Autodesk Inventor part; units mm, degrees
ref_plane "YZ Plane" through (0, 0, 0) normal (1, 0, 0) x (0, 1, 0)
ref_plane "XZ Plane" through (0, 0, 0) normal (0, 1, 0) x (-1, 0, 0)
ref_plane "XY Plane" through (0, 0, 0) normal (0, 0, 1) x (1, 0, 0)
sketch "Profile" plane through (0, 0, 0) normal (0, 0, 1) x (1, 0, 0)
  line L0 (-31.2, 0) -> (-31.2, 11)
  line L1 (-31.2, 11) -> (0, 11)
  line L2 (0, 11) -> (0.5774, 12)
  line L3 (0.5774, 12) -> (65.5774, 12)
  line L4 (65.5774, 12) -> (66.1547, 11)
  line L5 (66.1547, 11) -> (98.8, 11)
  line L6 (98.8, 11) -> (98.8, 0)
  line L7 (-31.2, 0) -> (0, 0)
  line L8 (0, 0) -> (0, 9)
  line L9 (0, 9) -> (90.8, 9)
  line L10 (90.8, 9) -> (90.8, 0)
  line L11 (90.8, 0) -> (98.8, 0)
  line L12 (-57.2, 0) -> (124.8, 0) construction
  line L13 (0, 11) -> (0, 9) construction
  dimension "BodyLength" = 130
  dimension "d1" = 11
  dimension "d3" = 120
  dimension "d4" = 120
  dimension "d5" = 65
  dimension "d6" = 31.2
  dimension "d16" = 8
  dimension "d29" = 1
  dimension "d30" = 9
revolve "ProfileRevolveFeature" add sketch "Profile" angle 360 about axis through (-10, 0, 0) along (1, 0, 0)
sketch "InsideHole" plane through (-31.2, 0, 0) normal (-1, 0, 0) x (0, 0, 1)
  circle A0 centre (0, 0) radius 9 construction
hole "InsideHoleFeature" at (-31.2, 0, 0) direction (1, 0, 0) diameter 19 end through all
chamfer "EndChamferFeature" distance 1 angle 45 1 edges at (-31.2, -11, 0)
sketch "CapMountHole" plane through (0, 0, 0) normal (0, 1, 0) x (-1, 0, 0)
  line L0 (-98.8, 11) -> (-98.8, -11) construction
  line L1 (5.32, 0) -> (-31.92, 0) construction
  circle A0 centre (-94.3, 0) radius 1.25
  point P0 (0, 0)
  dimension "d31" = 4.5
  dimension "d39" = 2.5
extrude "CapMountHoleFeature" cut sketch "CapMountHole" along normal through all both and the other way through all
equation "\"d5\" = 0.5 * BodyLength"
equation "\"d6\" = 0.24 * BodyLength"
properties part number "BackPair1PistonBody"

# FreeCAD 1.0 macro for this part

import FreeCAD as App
import Part
import Sketcher
Q = App.Units.Quantity


def edges_at(feature, points):
    """Names of the edges that pass closest to the given points."""
    edges = feature.Shape.Edges
    near = lambda p: min(range(len(edges)), key=lambda i: edges[i].distToShape(Part.Vertex(*p))[0])
    return sorted({f"Edge{near(p) + 1}" for p in points})


def add_polygon(sketch, points):
    """Adds a closed chain of lines whose ends are joined by coincident constraints."""
    first, n = sketch.GeometryCount, len(points)
    for a, b in zip(points, points[1:] + points[:1]):
        sketch.addGeometry(Part.LineSegment(App.Vector(*a, 0), App.Vector(*b, 0)), False)
    for i in range(n):
        sketch.addConstraint(Sketcher.Constraint("Coincident", first + i, 2, first + (i + 1) % n, 1))

doc = App.newDocument("Part")
body = doc.addObject("PartDesign::Body", "Body")

sketch1 = doc.addObject("Sketcher::SketchObject", "Sketch")
body.addObject(sketch1)
sketch1.AttachmentSupport = (doc.XY_Plane, [""])
sketch1.MapMode = "FlatFace"
add_polygon(sketch1, [(-31.2, 11), (-31.2, 0), (0, 0), (0, 9), (90.8, 9), (90.8, 0), (98.8, 0), (98.8, 11), (66.2, 11), (65.6, 12), (0.6, 12), (0, 11)])
sketch1.addConstraint([
    Sketcher.Constraint("Vertical", 0),
    Sketcher.Constraint("Horizontal", 1),
    Sketcher.Constraint("Vertical", 2),
    Sketcher.Constraint("Horizontal", 3),
    Sketcher.Constraint("Vertical", 4),
    Sketcher.Constraint("Horizontal", 5),
    Sketcher.Constraint("Vertical", 6),
    Sketcher.Constraint("Horizontal", 7),
    Sketcher.Constraint("Horizontal", 9),
    Sketcher.Constraint("Horizontal", 11),
    Sketcher.Constraint("Coincident", 1, 2, -1, 1),
    Sketcher.Constraint("PointOnObject", 4, 2, -1),
    Sketcher.Constraint("PointOnObject", 10, 2, -2),
    Sketcher.Constraint("Horizontal", 7, 2, 10, 2),
    Sketcher.Constraint("Equal", 8, 10),
    Sketcher.Constraint("DistanceX", 5, 1, 5, 2, Q("8 mm")),
    Sketcher.Constraint("DistanceX", 9, 2, 9, 1, Q("65 mm")),
    Sketcher.Constraint("DistanceY", 0, 2, 0, 1, Q("11 mm")),
    Sketcher.Constraint("DistanceY", 2, 1, 2, 2, Q("9 mm")),
    Sketcher.Constraint("DistanceX", 1, 1, 1, 2, Q("31.2 mm")),
    Sketcher.Constraint("DistanceX", 0, 2, 5, 2, Q("130 mm")),
    Sketcher.Constraint("DistanceY", 7, 2, 8, 2, Q("1 mm")),
    Sketcher.Constraint("DistanceX", 7, 2, 7, 1, Q("32.6453 mm")),
])
revolution = doc.addObject("PartDesign::Revolution", "Revolution")
body.addObject(revolution)
revolution.Profile = sketch1
revolution.ReferenceAxis = (sketch1, ["H_Axis"])
revolution.Angle = 360

sketch2 = doc.addObject("Sketcher::SketchObject", "Sketch001")
body.addObject(sketch2)
sketch2.AttachmentSupport = (doc.YZ_Plane, [""])
sketch2.MapMode = "FlatFace"
sketch2.AttachmentOffset = App.Placement(App.Vector(0, 0, -31.2), App.Rotation())
sketch2.addGeometry(Part.Circle(App.Vector(0, 0, 0), App.Vector(0, 0, 1), 10), False)
sketch2.addConstraint([
    Sketcher.Constraint("Coincident", 0, 3, -1, 1),
    Sketcher.Constraint("Diameter", 0, Q("19 mm")),
])
doc.recompute()
hole = doc.addObject("PartDesign::Hole", "Hole")
body.addObject(hole)
hole.Profile = sketch2
hole.ThreadType = "None"
hole.Diameter = 19
hole.DepthType = "ThroughAll"
hole.Reversed = True
doc.recompute()

chamfer = doc.addObject("PartDesign::Chamfer", "Chamfer")
body.addObject(chamfer)
chamfer.Base = (hole, edges_at(hole, [(-31.2, -11, 0)]))
chamfer.Size = 1

sketch3 = doc.addObject("Sketcher::SketchObject", "Sketch002")
body.addObject(sketch3)
sketch3.AttachmentSupport = (doc.XZ_Plane, [""])
sketch3.MapMode = "FlatFace"
sketch3.addGeometry(Part.Circle(App.Vector(94.3, 0, 0), App.Vector(0, 0, 1), 1.2), False)
sketch3.addConstraint([
    Sketcher.Constraint("PointOnObject", 0, 3, -1),
    Sketcher.Constraint("Diameter", 0, Q("2.5 mm")),
    Sketcher.Constraint("DistanceX", -1, 1, 0, 3, Q("94.3 mm")),
])
pocket1 = doc.addObject("PartDesign::Pocket", "Pocket")
body.addObject(pocket1)
pocket1.Profile = sketch3
pocket1.Type = "ThroughAll"
pocket1.Midplane = True

doc.recompute()
